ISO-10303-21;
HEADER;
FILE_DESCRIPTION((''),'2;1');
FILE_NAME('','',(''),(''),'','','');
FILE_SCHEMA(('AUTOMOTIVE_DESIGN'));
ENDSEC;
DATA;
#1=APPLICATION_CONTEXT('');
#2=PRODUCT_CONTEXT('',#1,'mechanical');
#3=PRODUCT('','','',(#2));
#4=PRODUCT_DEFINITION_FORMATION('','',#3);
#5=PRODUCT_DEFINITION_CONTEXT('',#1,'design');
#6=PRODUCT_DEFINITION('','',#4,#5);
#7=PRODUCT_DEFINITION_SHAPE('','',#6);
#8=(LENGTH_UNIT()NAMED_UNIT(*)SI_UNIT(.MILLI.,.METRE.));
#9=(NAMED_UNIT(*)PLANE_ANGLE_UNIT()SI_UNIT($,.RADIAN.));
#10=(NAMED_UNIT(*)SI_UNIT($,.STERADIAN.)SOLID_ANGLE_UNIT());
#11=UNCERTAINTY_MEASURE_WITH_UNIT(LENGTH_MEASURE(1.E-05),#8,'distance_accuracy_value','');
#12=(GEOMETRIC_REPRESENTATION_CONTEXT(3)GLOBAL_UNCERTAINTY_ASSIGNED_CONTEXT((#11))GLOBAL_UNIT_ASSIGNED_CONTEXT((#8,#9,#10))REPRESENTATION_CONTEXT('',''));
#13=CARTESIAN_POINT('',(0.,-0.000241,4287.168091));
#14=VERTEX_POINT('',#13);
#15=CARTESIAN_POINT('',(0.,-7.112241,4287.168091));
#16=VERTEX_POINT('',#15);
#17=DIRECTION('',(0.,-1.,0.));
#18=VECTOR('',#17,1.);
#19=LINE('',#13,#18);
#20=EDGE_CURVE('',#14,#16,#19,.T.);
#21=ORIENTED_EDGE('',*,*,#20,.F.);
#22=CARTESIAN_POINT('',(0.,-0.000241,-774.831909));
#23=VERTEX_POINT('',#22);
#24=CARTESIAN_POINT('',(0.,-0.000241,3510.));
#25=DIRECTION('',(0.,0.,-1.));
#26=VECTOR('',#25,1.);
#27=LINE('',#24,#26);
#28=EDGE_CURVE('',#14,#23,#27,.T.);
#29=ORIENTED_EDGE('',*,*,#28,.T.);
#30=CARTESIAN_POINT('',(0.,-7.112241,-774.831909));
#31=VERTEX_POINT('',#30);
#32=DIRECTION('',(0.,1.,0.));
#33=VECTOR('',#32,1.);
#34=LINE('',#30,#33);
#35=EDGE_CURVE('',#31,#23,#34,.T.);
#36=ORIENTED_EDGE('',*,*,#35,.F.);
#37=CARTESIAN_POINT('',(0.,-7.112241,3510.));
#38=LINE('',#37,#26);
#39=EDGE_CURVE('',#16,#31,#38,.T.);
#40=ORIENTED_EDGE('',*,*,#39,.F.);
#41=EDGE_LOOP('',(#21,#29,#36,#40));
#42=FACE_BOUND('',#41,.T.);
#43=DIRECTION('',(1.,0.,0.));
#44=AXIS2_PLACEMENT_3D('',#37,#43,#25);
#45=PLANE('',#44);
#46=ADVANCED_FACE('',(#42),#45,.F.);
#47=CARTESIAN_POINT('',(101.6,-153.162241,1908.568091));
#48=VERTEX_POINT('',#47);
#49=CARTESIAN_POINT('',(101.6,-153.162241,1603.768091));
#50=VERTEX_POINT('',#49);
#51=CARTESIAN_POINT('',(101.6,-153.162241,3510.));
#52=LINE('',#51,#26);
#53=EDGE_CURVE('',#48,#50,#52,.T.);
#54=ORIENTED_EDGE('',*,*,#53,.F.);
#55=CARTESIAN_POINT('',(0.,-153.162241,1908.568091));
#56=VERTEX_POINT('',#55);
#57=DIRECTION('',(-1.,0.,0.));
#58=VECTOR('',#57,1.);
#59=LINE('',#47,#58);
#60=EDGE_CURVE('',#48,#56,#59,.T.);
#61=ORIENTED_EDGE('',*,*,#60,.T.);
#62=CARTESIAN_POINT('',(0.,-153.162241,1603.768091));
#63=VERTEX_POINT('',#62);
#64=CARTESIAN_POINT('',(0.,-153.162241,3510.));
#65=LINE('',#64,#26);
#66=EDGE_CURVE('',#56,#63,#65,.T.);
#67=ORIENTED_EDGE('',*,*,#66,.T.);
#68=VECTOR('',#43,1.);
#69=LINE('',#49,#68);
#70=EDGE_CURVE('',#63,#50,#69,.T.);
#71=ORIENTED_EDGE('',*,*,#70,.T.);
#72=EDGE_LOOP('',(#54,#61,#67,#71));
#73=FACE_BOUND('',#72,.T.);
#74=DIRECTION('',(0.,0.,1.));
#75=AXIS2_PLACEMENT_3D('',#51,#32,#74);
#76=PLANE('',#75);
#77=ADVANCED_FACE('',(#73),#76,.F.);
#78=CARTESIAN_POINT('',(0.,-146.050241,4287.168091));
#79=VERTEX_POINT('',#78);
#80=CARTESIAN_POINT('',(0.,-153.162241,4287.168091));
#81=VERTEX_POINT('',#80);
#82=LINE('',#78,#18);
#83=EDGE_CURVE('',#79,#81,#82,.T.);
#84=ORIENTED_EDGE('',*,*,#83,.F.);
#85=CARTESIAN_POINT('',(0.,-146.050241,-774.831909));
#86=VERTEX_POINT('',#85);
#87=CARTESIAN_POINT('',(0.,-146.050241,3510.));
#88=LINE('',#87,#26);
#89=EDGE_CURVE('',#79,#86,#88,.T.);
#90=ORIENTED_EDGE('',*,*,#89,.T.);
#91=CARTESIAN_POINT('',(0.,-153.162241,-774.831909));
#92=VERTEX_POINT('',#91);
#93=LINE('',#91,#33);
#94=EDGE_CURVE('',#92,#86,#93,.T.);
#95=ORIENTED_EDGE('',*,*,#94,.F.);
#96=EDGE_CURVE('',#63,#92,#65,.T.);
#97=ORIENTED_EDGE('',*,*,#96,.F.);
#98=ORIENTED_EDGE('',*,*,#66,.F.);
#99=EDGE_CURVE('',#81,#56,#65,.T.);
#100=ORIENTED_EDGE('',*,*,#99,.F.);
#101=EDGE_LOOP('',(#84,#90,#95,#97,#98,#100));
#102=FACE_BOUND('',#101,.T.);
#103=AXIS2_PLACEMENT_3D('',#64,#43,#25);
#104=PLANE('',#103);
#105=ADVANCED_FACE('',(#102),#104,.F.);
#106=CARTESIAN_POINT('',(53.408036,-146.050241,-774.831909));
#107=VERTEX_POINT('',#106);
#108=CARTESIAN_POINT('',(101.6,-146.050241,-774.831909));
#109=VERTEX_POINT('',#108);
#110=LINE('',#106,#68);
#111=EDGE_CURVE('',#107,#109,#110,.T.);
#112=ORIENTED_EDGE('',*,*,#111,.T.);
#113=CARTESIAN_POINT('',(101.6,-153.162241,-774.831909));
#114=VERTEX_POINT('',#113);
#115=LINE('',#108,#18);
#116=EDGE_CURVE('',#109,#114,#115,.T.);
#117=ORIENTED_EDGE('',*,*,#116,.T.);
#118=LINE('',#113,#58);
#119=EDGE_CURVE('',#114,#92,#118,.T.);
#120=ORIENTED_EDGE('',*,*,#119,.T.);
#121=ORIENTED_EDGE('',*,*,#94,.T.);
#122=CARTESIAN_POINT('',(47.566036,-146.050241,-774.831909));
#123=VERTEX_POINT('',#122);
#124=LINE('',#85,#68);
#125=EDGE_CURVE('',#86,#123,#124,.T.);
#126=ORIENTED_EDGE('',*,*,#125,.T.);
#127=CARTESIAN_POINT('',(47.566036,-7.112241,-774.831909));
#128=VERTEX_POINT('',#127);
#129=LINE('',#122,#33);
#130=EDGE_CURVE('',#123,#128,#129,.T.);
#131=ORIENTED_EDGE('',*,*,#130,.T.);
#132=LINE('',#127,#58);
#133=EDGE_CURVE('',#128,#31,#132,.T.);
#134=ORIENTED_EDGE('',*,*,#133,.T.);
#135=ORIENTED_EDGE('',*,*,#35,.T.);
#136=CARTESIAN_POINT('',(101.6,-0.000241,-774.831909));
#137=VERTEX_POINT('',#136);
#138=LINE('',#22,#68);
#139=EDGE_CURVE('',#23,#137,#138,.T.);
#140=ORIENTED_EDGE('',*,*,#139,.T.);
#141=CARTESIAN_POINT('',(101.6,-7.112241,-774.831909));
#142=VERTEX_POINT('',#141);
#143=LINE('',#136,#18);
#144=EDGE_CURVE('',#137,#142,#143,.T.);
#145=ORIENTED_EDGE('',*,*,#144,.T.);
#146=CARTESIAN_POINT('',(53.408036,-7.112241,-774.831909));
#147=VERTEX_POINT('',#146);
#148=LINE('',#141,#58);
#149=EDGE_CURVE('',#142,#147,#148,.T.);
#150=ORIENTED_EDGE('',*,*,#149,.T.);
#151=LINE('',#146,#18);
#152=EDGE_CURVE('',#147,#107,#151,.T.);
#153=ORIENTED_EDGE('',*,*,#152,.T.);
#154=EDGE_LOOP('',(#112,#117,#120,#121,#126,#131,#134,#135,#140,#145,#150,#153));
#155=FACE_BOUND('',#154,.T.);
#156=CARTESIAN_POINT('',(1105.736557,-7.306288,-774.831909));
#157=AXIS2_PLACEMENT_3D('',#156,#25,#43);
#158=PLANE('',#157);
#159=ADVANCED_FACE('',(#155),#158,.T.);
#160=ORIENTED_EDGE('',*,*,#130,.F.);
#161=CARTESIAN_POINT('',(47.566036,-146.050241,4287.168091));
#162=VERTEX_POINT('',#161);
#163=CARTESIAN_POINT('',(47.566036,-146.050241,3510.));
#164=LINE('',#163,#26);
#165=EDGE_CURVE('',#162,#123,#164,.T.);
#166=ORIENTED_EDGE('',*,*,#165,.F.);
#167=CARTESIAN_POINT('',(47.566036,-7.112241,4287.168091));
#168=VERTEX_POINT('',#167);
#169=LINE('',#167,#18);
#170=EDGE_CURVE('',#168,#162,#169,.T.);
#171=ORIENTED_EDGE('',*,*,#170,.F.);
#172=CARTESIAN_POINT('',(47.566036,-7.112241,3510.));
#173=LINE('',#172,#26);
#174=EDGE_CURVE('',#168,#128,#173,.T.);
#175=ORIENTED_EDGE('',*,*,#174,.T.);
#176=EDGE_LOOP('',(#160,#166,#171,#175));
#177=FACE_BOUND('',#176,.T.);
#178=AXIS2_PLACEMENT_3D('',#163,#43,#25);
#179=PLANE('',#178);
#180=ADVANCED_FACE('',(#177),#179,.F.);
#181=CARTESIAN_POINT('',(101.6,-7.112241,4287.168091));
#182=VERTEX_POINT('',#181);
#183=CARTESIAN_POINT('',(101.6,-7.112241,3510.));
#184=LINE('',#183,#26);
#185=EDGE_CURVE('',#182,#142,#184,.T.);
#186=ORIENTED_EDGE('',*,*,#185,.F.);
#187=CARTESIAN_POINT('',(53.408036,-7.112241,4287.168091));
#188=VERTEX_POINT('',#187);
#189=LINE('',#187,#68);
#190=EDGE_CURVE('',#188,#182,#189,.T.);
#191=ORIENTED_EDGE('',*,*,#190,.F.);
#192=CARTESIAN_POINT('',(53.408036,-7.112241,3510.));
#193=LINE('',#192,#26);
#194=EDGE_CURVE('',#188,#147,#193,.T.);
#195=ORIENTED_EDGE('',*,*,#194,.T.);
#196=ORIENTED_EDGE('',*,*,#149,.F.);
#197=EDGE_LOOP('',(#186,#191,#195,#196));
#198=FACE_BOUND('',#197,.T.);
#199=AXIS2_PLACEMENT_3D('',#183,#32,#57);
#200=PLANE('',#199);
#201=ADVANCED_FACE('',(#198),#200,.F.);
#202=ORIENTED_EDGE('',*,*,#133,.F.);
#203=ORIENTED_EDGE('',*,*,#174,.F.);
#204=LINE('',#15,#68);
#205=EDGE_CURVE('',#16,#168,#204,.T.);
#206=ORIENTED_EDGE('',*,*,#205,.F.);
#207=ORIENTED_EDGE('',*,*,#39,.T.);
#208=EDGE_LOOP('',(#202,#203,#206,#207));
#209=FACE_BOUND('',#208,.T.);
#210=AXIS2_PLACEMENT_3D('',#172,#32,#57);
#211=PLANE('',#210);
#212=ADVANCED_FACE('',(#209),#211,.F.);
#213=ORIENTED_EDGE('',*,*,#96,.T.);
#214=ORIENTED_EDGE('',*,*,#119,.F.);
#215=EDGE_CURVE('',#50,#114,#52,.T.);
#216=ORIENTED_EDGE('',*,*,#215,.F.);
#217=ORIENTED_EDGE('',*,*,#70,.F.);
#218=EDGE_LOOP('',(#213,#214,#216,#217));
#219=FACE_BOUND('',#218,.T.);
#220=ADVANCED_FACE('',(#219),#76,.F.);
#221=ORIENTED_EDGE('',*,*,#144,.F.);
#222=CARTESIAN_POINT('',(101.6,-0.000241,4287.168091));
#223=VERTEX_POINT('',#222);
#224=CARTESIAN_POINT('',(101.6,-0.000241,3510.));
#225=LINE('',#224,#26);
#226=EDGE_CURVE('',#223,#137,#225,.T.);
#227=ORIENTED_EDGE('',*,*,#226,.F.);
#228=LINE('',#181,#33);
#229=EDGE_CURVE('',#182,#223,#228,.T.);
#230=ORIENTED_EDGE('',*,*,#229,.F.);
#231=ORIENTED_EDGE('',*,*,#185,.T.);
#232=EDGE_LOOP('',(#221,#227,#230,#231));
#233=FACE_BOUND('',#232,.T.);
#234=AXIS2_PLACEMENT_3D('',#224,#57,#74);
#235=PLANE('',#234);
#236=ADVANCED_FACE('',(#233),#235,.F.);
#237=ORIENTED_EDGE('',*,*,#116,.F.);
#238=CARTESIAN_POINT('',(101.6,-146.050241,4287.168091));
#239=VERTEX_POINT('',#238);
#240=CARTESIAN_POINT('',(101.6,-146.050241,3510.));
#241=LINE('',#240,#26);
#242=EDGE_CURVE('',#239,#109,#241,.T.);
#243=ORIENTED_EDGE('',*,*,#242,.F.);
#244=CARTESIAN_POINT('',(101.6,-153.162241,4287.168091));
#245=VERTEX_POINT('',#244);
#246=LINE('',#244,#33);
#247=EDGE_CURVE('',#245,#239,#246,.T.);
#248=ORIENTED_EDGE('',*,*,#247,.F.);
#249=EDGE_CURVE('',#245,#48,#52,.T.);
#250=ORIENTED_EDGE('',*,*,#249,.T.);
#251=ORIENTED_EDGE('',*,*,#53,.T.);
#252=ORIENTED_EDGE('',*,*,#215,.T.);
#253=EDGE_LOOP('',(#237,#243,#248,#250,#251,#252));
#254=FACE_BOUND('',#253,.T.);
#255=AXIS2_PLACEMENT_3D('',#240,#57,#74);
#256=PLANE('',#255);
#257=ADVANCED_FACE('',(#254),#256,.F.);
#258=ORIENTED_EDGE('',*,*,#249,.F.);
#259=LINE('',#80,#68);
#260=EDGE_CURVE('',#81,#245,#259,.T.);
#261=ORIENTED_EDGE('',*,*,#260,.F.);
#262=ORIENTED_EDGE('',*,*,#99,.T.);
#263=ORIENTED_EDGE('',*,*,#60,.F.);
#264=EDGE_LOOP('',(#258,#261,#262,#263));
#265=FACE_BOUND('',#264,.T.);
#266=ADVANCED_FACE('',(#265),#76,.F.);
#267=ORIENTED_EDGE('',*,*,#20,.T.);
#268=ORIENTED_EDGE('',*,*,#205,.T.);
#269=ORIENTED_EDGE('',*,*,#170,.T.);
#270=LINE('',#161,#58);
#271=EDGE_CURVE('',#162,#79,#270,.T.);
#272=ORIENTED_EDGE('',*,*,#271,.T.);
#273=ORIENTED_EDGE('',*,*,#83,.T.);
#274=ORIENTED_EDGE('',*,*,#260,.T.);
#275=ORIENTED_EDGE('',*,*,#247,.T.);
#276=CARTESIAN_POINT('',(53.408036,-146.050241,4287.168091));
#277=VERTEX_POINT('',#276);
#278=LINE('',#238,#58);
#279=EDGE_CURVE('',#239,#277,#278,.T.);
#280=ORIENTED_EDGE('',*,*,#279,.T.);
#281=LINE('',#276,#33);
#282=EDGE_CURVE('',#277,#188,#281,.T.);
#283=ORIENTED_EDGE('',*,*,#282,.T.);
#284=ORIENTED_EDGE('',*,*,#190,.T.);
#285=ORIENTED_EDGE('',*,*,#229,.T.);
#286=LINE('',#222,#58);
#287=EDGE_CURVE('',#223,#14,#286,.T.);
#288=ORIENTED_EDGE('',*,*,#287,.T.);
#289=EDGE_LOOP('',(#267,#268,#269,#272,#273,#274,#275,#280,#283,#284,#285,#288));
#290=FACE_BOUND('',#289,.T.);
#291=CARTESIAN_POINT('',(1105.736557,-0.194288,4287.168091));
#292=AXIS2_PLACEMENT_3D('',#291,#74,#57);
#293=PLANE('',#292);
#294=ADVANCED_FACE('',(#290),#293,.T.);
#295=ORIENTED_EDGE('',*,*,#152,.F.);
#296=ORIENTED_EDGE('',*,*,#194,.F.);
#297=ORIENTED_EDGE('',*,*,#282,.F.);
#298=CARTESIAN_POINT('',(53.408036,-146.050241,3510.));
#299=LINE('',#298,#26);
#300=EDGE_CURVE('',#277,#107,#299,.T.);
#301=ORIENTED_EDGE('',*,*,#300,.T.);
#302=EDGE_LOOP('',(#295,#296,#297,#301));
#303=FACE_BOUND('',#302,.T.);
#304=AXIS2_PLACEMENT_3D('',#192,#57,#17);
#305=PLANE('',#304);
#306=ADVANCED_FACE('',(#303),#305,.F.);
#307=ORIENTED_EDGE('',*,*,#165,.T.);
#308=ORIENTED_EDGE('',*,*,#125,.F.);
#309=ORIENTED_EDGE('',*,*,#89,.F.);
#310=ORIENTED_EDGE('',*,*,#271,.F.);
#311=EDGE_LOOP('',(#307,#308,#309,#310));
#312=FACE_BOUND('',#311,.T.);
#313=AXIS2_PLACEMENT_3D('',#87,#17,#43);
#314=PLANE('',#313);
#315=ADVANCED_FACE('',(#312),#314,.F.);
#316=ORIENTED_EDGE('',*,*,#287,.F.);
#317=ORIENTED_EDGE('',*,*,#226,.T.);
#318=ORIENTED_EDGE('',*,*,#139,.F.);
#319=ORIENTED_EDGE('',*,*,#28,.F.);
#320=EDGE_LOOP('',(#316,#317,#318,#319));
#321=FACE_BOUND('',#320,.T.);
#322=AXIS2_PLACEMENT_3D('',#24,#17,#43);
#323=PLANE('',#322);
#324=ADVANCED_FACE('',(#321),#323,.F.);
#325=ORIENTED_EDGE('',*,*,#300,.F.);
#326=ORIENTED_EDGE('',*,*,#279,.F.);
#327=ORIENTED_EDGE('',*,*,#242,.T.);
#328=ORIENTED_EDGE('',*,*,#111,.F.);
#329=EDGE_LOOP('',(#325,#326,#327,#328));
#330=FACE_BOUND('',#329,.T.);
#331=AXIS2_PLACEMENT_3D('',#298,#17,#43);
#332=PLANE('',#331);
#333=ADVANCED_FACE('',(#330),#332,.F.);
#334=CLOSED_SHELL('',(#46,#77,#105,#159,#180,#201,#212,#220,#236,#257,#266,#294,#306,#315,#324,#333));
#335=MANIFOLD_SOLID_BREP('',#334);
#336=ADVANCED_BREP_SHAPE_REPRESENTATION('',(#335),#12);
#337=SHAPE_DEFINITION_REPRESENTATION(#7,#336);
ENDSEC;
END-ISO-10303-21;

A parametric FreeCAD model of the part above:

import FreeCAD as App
import Part
import Sketcher
Q = App.Units.Quantity


def add_polygon(sketch, points):
    """Adds a closed chain of lines whose ends are joined by coincident constraints."""
    first, n = sketch.GeometryCount, len(points)
    for a, b in zip(points, points[1:] + points[:1]):
        sketch.addGeometry(Part.LineSegment(App.Vector(*a, 0), App.Vector(*b, 0)), False)
    for i in range(n):
        sketch.addConstraint(Sketcher.Constraint("Coincident", first + i, 2, first + (i + 1) % n, 1))

doc = App.newDocument("Part")
body = doc.addObject("PartDesign::Body", "Body")

sketch1 = body.newObject("Sketcher::SketchObject", "Sketch")
sketch1.AttachmentSupport = (doc.getObject("XY_Plane"), [""])
sketch1.MapMode = "FlatFace"
add_polygon(sketch1, [(102, 0), (0, 0), (0, -7), (48, -7), (48, -146), (0, -146), (0, -153), (102, -153), (102, -146), (53, -146), (53, -7), (102, -7)])
sketch1.addConstraint(Sketcher.Constraint("Horizontal", 0))
sketch1.addConstraint(Sketcher.Constraint("Vertical", 1))
sketch1.addConstraint(Sketcher.Constraint("Horizontal", 2))
sketch1.addConstraint(Sketcher.Constraint("Vertical", 3))
sketch1.addConstraint(Sketcher.Constraint("Horizontal", 4))
sketch1.addConstraint(Sketcher.Constraint("Vertical", 5))
sketch1.addConstraint(Sketcher.Constraint("Horizontal", 6))
sketch1.addConstraint(Sketcher.Constraint("Vertical", 7))
sketch1.addConstraint(Sketcher.Constraint("Horizontal", 8))
sketch1.addConstraint(Sketcher.Constraint("Vertical", 9))
sketch1.addConstraint(Sketcher.Constraint("Horizontal", 10))
sketch1.addConstraint(Sketcher.Constraint("Vertical", 11))
sketch1.addConstraint(Sketcher.Constraint("PointOnObject", 0, 2, -2))
sketch1.addConstraint(Sketcher.Constraint("PointOnObject", 4, 2, -2))
sketch1.addConstraint(Sketcher.Constraint("Horizontal", 4, 2, 7, 2))
sketch1.addConstraint(Sketcher.Constraint("Horizontal", 2, 2, 9, 2))
sketch1.addConstraint(Sketcher.Constraint("Vertical", 7, 2, 10, 2))
sketch1.addConstraint(Sketcher.Constraint("Equal", 1, 5))
sketch1.addConstraint(Sketcher.Constraint("DistanceX", 0, 2, 0, 1, Q("4 in")))
sketch1.addConstraint(Sketcher.Constraint("DistanceY", 1, 2, 1, 1, Q("0.28 in")))
sketch1.addConstraint(Sketcher.Constraint("DistanceY", 3, 2, 3, 1, Q("5.47 in")))
sketch1.addConstraint(Sketcher.Constraint("DistanceX", 3, 2, 8, 2, Q("0.23 in")))
sketch1.addConstraint(Sketcher.Constraint("DistanceX", 2, 1, 2, 2, Q("47.566036 mm")))
sketch1.addConstraint(Sketcher.Constraint("DistanceY", 0, 2, -1, 1, Q("0.000241 mm")))
pad1 = body.newObject("PartDesign::Pad", "Pad")
pad1.Profile = sketch1
pad1.Length = 3510

sketch2 = body.newObject("Sketcher::SketchObject", "Sketch001")
sketch2.AttachmentSupport = (doc.getObject("XY_Plane"), [""])
sketch2.MapMode = "FlatFace"
sketch2.AttachmentOffset = App.Placement(App.Vector(0, 0, 3510), App.Rotation())
add_polygon(sketch2, [(0, 0), (0, -7), (48, -7), (48, -146), (0, -146), (0, -153), (102, -153), (102, -146), (53, -146), (53, -7), (102, -7), (102, 0)])
sketch2.addConstraint(Sketcher.Constraint("Vertical", 0))
sketch2.addConstraint(Sketcher.Constraint("Horizontal", 1))
sketch2.addConstraint(Sketcher.Constraint("Vertical", 2))
sketch2.addConstraint(Sketcher.Constraint("Horizontal", 3))
sketch2.addConstraint(Sketcher.Constraint("Vertical", 4))
sketch2.addConstraint(Sketcher.Constraint("Horizontal", 5))
sketch2.addConstraint(Sketcher.Constraint("Vertical", 6))
sketch2.addConstraint(Sketcher.Constraint("Horizontal", 7))
sketch2.addConstraint(Sketcher.Constraint("Vertical", 8))
sketch2.addConstraint(Sketcher.Constraint("Horizontal", 9))
sketch2.addConstraint(Sketcher.Constraint("Vertical", 10))
sketch2.addConstraint(Sketcher.Constraint("Horizontal", 11))
sketch2.addConstraint(Sketcher.Constraint("PointOnObject", 0, 2, -2))
sketch2.addConstraint(Sketcher.Constraint("PointOnObject", 3, 2, -2))
sketch2.addConstraint(Sketcher.Constraint("Horizontal", 3, 2, 6, 2))
sketch2.addConstraint(Sketcher.Constraint("Horizontal", 1, 2, 8, 2))
sketch2.addConstraint(Sketcher.Constraint("Vertical", 6, 2, 9, 2))
sketch2.addConstraint(Sketcher.Constraint("Equal", 0, 4))
sketch2.addConstraint(Sketcher.Constraint("DistanceX", 5, 1, 5, 2, Q("4 in")))
sketch2.addConstraint(Sketcher.Constraint("DistanceY", 0, 2, 0, 1, Q("0.28 in")))
sketch2.addConstraint(Sketcher.Constraint("DistanceY", 2, 2, 2, 1, Q("5.47 in")))
sketch2.addConstraint(Sketcher.Constraint("DistanceX", 2, 2, 7, 2, Q("0.23 in")))
sketch2.addConstraint(Sketcher.Constraint("DistanceX", 1, 1, 1, 2, Q("47.566036 mm")))
sketch2.addConstraint(Sketcher.Constraint("DistanceY", 0, 2, -1, 1, Q("7.112241 mm")))
pad2 = body.newObject("PartDesign::Pad", "Pad001")
pad2.Profile = sketch2
pad2.Length = 777.168091

sketch3 = body.newObject("Sketcher::SketchObject", "Sketch002")
sketch3.AttachmentSupport = (doc.getObject("XY_Plane"), [""])
sketch3.MapMode = "FlatFace"
add_polygon(sketch3, [(0, -7), (0, 0), (102, 0), (102, -7), (53, -7), (53, -146), (102, -146), (102, -153), (0, -153), (0, -146), (48, -146), (48, -7)])
sketch3.addConstraint(Sketcher.Constraint("Vertical", 0))
sketch3.addConstraint(Sketcher.Constraint("Horizontal", 1))
sketch3.addConstraint(Sketcher.Constraint("Vertical", 2))
sketch3.addConstraint(Sketcher.Constraint("Horizontal", 3))
sketch3.addConstraint(Sketcher.Constraint("Vertical", 4))
sketch3.addConstraint(Sketcher.Constraint("Horizontal", 5))
sketch3.addConstraint(Sketcher.Constraint("Vertical", 6))
sketch3.addConstraint(Sketcher.Constraint("Horizontal", 7))
sketch3.addConstraint(Sketcher.Constraint("Vertical", 8))
sketch3.addConstraint(Sketcher.Constraint("Horizontal", 9))
sketch3.addConstraint(Sketcher.Constraint("Vertical", 10))
sketch3.addConstraint(Sketcher.Constraint("Horizontal", 11))
sketch3.addConstraint(Sketcher.Constraint("PointOnObject", 0, 2, -2))
sketch3.addConstraint(Sketcher.Constraint("PointOnObject", 7, 2, -2))
sketch3.addConstraint(Sketcher.Constraint("Horizontal", 5, 2, 8, 2))
sketch3.addConstraint(Sketcher.Constraint("Horizontal", 3, 2, 10, 2))
sketch3.addConstraint(Sketcher.Constraint("Vertical", 2, 2, 5, 2))
sketch3.addConstraint(Sketcher.Constraint("Equal", 2, 6))
sketch3.addConstraint(Sketcher.Constraint("DistanceX", 1, 1, 1, 2, Q("4 in")))
sketch3.addConstraint(Sketcher.Constraint("DistanceY", 0, 1, 0, 2, Q("0.28 in")))
sketch3.addConstraint(Sketcher.Constraint("DistanceY", 4, 2, 4, 1, Q("5.47 in")))
sketch3.addConstraint(Sketcher.Constraint("DistanceX", 9, 2, 4, 2, Q("0.23 in")))
sketch3.addConstraint(Sketcher.Constraint("DistanceX", 3, 2, 3, 1, Q("48.191964 mm")))
sketch3.addConstraint(Sketcher.Constraint("DistanceY", 0, 2, -1, 1, Q("0.000241 mm")))
pad3 = body.newObject("PartDesign::Pad", "Pad002")
pad3.Profile = sketch3
pad3.Length = 774.831909
pad3.Reversed = True

doc.recompute()
